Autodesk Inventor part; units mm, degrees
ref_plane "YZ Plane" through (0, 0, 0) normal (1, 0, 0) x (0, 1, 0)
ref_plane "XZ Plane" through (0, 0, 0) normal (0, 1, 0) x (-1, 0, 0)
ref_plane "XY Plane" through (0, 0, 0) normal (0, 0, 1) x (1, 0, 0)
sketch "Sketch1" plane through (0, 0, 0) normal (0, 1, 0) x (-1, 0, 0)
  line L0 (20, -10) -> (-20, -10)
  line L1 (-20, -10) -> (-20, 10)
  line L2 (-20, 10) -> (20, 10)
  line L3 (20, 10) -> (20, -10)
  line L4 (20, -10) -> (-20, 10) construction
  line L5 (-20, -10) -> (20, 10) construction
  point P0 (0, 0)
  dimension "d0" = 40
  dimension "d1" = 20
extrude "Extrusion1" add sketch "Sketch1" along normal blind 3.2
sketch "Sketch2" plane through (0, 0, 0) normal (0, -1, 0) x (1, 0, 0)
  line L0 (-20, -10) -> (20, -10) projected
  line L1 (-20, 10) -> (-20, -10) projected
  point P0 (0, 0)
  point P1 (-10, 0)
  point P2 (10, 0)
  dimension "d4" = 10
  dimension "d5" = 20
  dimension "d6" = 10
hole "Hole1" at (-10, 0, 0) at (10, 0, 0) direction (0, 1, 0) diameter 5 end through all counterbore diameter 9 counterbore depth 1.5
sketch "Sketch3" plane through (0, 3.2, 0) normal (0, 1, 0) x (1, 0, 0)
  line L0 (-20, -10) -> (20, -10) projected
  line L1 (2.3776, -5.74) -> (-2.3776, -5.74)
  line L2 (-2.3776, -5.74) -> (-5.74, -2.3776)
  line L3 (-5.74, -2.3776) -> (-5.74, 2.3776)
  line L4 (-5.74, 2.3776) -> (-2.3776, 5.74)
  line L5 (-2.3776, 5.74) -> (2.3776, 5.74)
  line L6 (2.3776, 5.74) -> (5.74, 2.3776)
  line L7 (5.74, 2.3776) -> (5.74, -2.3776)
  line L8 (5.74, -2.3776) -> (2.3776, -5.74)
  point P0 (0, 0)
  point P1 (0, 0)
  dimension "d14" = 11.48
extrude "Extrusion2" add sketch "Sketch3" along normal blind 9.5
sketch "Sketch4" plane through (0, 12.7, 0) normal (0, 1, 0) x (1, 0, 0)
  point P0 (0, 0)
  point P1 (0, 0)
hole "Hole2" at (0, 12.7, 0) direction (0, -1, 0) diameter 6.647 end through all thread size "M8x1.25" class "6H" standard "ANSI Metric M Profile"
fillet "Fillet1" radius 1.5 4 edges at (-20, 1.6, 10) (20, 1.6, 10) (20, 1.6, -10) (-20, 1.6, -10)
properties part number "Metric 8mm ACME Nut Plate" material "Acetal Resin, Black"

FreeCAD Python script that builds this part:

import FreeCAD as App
import Part
import Sketcher

V = App.Vector


def edges_at(feature, points):
    """Names of the edges that pass closest to the given points."""
    edges = feature.Shape.Edges
    near = lambda p: min(range(len(edges)), key=lambda i: edges[i].distToShape(Part.Vertex(*p))[0])
    return sorted({f"Edge{near(p) + 1}" for p in points})

doc = App.newDocument("Part")
body = doc.addObject("PartDesign::Body", "Body")

# Sketch on XZ plane
sketch1 = body.newObject("Sketcher::SketchObject", "Sketch")
sketch1.AttachmentSupport = (doc.getObject("XZ_Plane"), [""])
sketch1.MapMode = "FlatFace"
sketch1.addGeometry(Part.LineSegment(V(20, -10, 0), V(-20, -10, 0)), False)
sketch1.addGeometry(Part.LineSegment(V(-20, -10, 0), V(-20, 10, 0)), False)
sketch1.addGeometry(Part.LineSegment(V(-20, 10, 0), V(20, 10, 0)), False)
sketch1.addGeometry(Part.LineSegment(V(20, 10, 0), V(20, -10, 0)), False)
sketch1.addConstraint(Sketcher.Constraint("Coincident", 0, 2, 1, 1))
sketch1.addConstraint(Sketcher.Constraint("Coincident", 1, 2, 2, 1))
sketch1.addConstraint(Sketcher.Constraint("Coincident", 2, 2, 3, 1))
sketch1.addConstraint(Sketcher.Constraint("Coincident", 3, 2, 0, 1))
sketch1.addConstraint(Sketcher.Constraint("Horizontal", 0))
sketch1.addConstraint(Sketcher.Constraint("Vertical", 1))
sketch1.addConstraint(Sketcher.Constraint("Horizontal", 2))
sketch1.addConstraint(Sketcher.Constraint("Vertical", 3))
sketch1.addConstraint(Sketcher.Constraint("Symmetric", 0, 2, 2, 2, -1, 1))
sketch1.addConstraint(Sketcher.Constraint("DistanceX", 0, 2, 0, 1, 40.0))
sketch1.addConstraint(Sketcher.Constraint("DistanceY", 1, 1, 1, 2, 20.0))
pad1 = body.newObject("PartDesign::Pad", "Pad")
pad1.Profile = sketch1
pad1.Length = 3.2
pad1.Reversed = True

# Sketch on XZ plane
sketch2 = body.newObject("Sketcher::SketchObject", "Sketch001")
sketch2.AttachmentSupport = (doc.getObject("XZ_Plane"), [""])
sketch2.MapMode = "FlatFace"
sketch2.addGeometry(Part.Circle(V(-10, 0, 0), V(0, 0, 1), 2.5), False)
sketch2.addGeometry(Part.Circle(V(10, 0, 0), V(0, 0, 1), 2.5), False)
sketch2.addConstraint(Sketcher.Constraint("Equal", 0, 1))
sketch2.addConstraint(Sketcher.Constraint("Symmetric", 0, 3, 1, 3, -1, 1))
sketch2.addConstraint(Sketcher.Constraint("PointOnObject", 0, 3, -1))
sketch2.addConstraint(Sketcher.Constraint("Diameter", 0, 5.0))
sketch2.addConstraint(Sketcher.Constraint("DistanceX", 0, 3, -1, 1, 10.0))
doc.recompute()
hole = body.newObject("PartDesign::Hole", "Hole")
hole.Profile = sketch2
hole.ThreadType = "None"
hole.Diameter = 5
hole.DepthType = "ThroughAll"
hole.HoleCutType = "Counterbore"
hole.HoleCutDiameter = 9
hole.HoleCutDepth = 1.5

# Sketch on XZ plane
sketch3 = body.newObject("Sketcher::SketchObject", "Sketch002")
sketch3.AttachmentSupport = (doc.getObject("XZ_Plane"), [""])
sketch3.MapMode = "FlatFace"
sketch3.AttachmentOffset = App.Placement(V(0, 0, -3.2), App.Rotation())
sketch3.addGeometry(Part.LineSegment(V(-2.4, 5.7, 0), V(2.4, 5.7, 0)), False)
sketch3.addGeometry(Part.LineSegment(V(2.4, 5.7, 0), V(5.7, 2.4, 0)), False)
sketch3.addGeometry(Part.LineSegment(V(5.7, 2.4, 0), V(5.7, -2.4, 0)), False)
sketch3.addGeometry(Part.LineSegment(V(5.7, -2.4, 0), V(2.4, -5.7, 0)), False)
sketch3.addGeometry(Part.LineSegment(V(2.4, -5.7, 0), V(-2.4, -5.7, 0)), False)
sketch3.addGeometry(Part.LineSegment(V(-2.4, -5.7, 0), V(-5.7, -2.4, 0)), False)
sketch3.addGeometry(Part.LineSegment(V(-5.7, -2.4, 0), V(-5.7, 2.4, 0)), False)
sketch3.addGeometry(Part.LineSegment(V(-5.7, 2.4, 0), V(-2.4, 5.7, 0)), False)
sketch3.addConstraint(Sketcher.Constraint("Coincident", 0, 2, 1, 1))
sketch3.addConstraint(Sketcher.Constraint("Coincident", 1, 2, 2, 1))
sketch3.addConstraint(Sketcher.Constraint("Coincident", 2, 2, 3, 1))
sketch3.addConstraint(Sketcher.Constraint("Coincident", 3, 2, 4, 1))
sketch3.addConstraint(Sketcher.Constraint("Coincident", 4, 2, 5, 1))
sketch3.addConstraint(Sketcher.Constraint("Coincident", 5, 2, 6, 1))
sketch3.addConstraint(Sketcher.Constraint("Coincident", 6, 2, 7, 1))
sketch3.addConstraint(Sketcher.Constraint("Coincident", 7, 2, 0, 1))
sketch3.addConstraint(Sketcher.Constraint("Horizontal", 0))
sketch3.addConstraint(Sketcher.Constraint("Vertical", 2))
sketch3.addConstraint(Sketcher.Constraint("Horizontal", 4))
sketch3.addConstraint(Sketcher.Constraint("Vertical", 6))
sketch3.addConstraint(Sketcher.Constraint("Symmetric", 0, 2, 4, 2, -1, 1))
sketch3.addConstraint(Sketcher.Constraint("Symmetric", 1, 2, 5, 2, -1, 1))
sketch3.addConstraint(Sketcher.Constraint("Perpendicular", 1, 3))
sketch3.addConstraint(Sketcher.Constraint("Perpendicular", 5, 7))
sketch3.addConstraint(Sketcher.Constraint("Horizontal", 2, 2, 5, 2))
sketch3.addConstraint(Sketcher.Constraint("Horizontal", 1, 2, 6, 2))
sketch3.addConstraint(Sketcher.Constraint("Vertical", 0, 2, 3, 2))
sketch3.addConstraint(Sketcher.Constraint("Equal", 4, 2))
sketch3.addConstraint(Sketcher.Constraint("DistanceY", 3, 2, 0, 2, 11.48))
sketch3.addConstraint(Sketcher.Constraint("DistanceX", 0, 1, 0, 2, 4.7552))
pad2 = body.newObject("PartDesign::Pad", "Pad001")
pad2.Profile = sketch3
pad2.Length = 9.5
pad2.Reversed = True

# Sketch on XZ plane
sketch4 = body.newObject("Sketcher::SketchObject", "Sketch003")
sketch4.AttachmentSupport = (doc.getObject("XZ_Plane"), [""])
sketch4.MapMode = "FlatFace"
sketch4.AttachmentOffset = App.Placement(V(0, 0, -12.7), App.Rotation())
sketch4.addGeometry(Part.Circle(V(0, 0, 0), V(0, 0, 1), 3.3), False)
sketch4.addConstraint(Sketcher.Constraint("Coincident", 0, 3, -1, 1))
sketch4.addConstraint(Sketcher.Constraint("Diameter", 0, 6.647))
doc.recompute()
hole2 = body.newObject("PartDesign::Hole", "Hole001")
hole2.Profile = sketch4
hole2.ThreadType = "None"
hole2.Diameter = 6.647
hole2.DepthType = "ThroughAll"
hole2.Reversed = True
doc.recompute()

fillet = body.newObject("PartDesign::Fillet", "Fillet")
fillet.Base = (hole2, edges_at(hole2, [
    (-20, 1.6, 10),
    (20, 1.6, 10),
    (20, 1.6, -10),
    (-20, 1.6, -10),
]))
fillet.Radius = 1.5

doc.recompute()
